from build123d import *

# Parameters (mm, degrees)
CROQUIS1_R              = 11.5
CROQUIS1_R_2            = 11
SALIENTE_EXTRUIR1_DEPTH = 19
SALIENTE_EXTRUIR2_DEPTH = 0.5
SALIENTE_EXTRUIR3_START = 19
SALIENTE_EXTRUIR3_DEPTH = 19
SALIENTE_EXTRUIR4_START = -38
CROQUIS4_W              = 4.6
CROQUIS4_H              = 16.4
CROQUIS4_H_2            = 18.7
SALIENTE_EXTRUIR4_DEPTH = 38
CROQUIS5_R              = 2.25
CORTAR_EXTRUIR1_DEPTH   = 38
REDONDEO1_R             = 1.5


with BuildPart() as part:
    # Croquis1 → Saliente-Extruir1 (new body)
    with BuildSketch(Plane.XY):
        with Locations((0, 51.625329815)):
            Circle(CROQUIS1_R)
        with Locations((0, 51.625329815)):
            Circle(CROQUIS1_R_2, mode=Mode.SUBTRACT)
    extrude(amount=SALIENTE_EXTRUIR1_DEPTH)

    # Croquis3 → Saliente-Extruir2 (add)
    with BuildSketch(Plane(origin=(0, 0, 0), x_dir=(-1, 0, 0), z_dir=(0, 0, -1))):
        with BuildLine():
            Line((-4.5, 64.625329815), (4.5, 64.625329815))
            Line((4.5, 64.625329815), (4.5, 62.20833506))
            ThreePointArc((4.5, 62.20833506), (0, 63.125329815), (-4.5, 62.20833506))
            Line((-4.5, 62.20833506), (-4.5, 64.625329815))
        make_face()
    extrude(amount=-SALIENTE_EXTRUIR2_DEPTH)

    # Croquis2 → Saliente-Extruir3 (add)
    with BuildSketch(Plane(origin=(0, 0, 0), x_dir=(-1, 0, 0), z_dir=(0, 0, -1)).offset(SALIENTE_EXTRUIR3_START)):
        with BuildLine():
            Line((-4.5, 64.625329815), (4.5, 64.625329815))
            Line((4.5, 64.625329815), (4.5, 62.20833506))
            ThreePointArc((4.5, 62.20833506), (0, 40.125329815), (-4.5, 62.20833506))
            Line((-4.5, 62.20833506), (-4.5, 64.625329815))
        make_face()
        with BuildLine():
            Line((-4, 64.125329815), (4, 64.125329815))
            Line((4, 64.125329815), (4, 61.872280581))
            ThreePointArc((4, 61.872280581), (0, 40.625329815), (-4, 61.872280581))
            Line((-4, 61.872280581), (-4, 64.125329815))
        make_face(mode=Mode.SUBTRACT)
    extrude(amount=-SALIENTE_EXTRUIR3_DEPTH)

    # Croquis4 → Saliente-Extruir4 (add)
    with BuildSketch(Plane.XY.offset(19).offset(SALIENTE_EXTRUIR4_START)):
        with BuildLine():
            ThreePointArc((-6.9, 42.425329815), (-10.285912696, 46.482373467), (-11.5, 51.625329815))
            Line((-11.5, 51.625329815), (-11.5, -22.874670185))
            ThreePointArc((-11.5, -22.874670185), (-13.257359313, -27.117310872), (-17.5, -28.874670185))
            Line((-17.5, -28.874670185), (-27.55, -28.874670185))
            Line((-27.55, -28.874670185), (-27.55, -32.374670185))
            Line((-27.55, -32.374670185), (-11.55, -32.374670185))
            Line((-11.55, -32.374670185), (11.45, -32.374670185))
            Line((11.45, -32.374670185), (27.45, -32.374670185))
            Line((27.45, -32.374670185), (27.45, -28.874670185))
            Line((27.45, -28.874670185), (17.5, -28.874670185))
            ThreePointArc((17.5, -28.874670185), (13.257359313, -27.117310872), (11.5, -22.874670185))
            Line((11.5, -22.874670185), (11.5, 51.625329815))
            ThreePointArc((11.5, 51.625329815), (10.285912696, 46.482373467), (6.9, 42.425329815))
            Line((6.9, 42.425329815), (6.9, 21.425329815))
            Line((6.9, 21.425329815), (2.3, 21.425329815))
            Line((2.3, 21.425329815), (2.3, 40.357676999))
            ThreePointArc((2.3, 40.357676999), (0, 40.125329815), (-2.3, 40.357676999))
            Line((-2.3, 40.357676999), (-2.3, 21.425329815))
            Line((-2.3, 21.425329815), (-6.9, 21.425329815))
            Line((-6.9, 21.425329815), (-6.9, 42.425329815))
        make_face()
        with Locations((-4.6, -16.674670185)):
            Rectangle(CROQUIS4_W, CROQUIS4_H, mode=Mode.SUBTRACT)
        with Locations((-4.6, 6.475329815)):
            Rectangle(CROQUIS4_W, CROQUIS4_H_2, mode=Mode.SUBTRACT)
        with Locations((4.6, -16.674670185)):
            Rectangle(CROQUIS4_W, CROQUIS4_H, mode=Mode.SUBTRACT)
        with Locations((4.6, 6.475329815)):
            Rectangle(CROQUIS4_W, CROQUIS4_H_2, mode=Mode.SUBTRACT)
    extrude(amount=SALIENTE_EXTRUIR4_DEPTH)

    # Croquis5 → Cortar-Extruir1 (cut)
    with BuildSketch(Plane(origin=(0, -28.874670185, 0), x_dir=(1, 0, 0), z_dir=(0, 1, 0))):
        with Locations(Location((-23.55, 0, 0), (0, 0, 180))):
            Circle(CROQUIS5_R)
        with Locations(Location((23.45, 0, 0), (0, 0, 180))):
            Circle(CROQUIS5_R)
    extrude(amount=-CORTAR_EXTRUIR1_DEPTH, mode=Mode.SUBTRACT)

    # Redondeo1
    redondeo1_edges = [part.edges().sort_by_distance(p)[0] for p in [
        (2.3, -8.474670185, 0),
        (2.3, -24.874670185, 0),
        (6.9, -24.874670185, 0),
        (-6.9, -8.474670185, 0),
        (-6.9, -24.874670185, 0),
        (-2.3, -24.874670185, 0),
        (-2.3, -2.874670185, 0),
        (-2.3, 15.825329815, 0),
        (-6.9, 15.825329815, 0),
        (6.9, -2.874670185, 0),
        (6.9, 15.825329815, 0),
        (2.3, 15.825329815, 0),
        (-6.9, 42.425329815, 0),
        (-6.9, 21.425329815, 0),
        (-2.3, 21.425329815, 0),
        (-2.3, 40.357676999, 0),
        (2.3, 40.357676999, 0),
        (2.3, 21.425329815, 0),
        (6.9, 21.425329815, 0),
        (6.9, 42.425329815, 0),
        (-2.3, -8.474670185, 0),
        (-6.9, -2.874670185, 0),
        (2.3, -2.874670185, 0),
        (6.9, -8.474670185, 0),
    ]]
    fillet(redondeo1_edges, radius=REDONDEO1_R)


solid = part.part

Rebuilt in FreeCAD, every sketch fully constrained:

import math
import FreeCAD as App
import Part
import Sketcher
from FreeCAD import Vector
Q = App.Units.Quantity


def edges_at(feature, points):
    """Names of the edges that pass closest to the given points."""
    edges = feature.Shape.Edges
    near = lambda p: min(range(len(edges)), key=lambda i: edges[i].distToShape(Part.Vertex(*p))[0])
    return sorted({f"Edge{near(p) + 1}" for p in points})

doc = App.newDocument("Part")
body = doc.addObject("PartDesign::Body", "Body")

# Sketch on XY plane
sketch1 = doc.addObject("Sketcher::SketchObject", "Sketch")
body.addObject(sketch1)
sketch1.AttachmentSupport = (doc.XY_Plane, [""])
sketch1.MapMode = "FlatFace"
sketch1.addGeometry(Part.Circle(Vector(0, 52, 0), Vector(0, 0, 1), 12), False)
sketch1.addGeometry(Part.Circle(Vector(0, 52, 0), Vector(0, 0, 1), 11), False)
sketch1.addConstraint(Sketcher.Constraint("Coincident", 1, 3, 0, 3))
sketch1.addConstraint(Sketcher.Constraint("PointOnObject", 0, 3, -2))
sketch1.addConstraint(Sketcher.Constraint("Diameter", 0, Q("23 mm")))
sketch1.addConstraint(Sketcher.Constraint("Diameter", 1, Q("22 mm")))
sketch1.addConstraint(Sketcher.Constraint("DistanceY", -1, 1, 0, 3, Q("51.62533 mm")))
pad1 = doc.addObject("PartDesign::Pad", "Pad")
body.addObject(pad1)
pad1.Profile = sketch1
pad1.Length = 19

# Sketch on XY plane
sketch2 = doc.addObject("Sketcher::SketchObject", "Sketch001")
body.addObject(sketch2)
sketch2.AttachmentSupport = (doc.XY_Plane, [""])
sketch2.MapMode = "FlatFace"
sketch2.addGeometry(Part.LineSegment(Vector(-4.5, 64.6, 0), Vector(4.5, 64.6, 0)), False)
sketch2.addGeometry(Part.LineSegment(Vector(4.5, 64.6, 0), Vector(4.5, 62.2, 0)), False)
sketch2.addGeometry(Part.ArcOfCircle(Part.Circle(Vector(0, 51.6, 0), Vector(0, 0, 1), 11.5), math.radians(67), math.radians(113)), False)
sketch2.addGeometry(Part.LineSegment(Vector(-4.5, 62.2, 0), Vector(-4.5, 64.6, 0)), False)
sketch2.addConstraint(Sketcher.Constraint("Coincident", 0, 2, 1, 1))
sketch2.addConstraint(Sketcher.Constraint("Coincident", 1, 2, 2, 1))
sketch2.addConstraint(Sketcher.Constraint("Coincident", 2, 2, 3, 1))
sketch2.addConstraint(Sketcher.Constraint("Coincident", 3, 2, 0, 1))
sketch2.addConstraint(Sketcher.Constraint("Horizontal", 0))
sketch2.addConstraint(Sketcher.Constraint("Vertical", 1))
sketch2.addConstraint(Sketcher.Constraint("Vertical", 3))
sketch2.addConstraint(Sketcher.Constraint("Symmetric", 1, 2, 2, 2, -2))
sketch2.addConstraint(Sketcher.Constraint("Radius", 2, Q("11.5 mm")))
sketch2.addConstraint(Sketcher.Constraint("DistanceX", 0, 1, 0, 2, Q("9 mm")))
sketch2.addConstraint(Sketcher.Constraint("DistanceY", 2, 3, 0, 2, Q("13 mm")))
sketch2.addConstraint(Sketcher.Constraint("DistanceY", -1, 1, 2, 3, Q("51.62533 mm")))
pad2 = doc.addObject("PartDesign::Pad", "Pad001")
body.addObject(pad2)
pad2.Profile = sketch2
pad2.Length = 0.5

# Sketch on XY plane
sketch3 = doc.addObject("Sketcher::SketchObject", "Sketch002")
body.addObject(sketch3)
sketch3.AttachmentSupport = (doc.XY_Plane, [""])
sketch3.MapMode = "FlatFace"
sketch3.AttachmentOffset = App.Placement(Vector(0, 0, -19), App.Rotation())
sketch3.addGeometry(Part.LineSegment(Vector(-4.5, 64.6, 0), Vector(4.5, 64.6, 0)), False)
sketch3.addGeometry(Part.LineSegment(Vector(4.5, 64.6, 0), Vector(4.5, 62.2, 0)), False)
sketch3.addGeometry(Part.ArcOfCircle(Part.Circle(Vector(0, 51.6, 0), Vector(0, 0, 1), 11.5), math.radians(113), math.radians(427)), False)
sketch3.addGeometry(Part.LineSegment(Vector(-4.5, 62.2, 0), Vector(-4.5, 64.6, 0)), False)
sketch3.addGeometry(Part.LineSegment(Vector(4, 64.1, 0), Vector(-4, 64.1, 0)), False)
sketch3.addGeometry(Part.LineSegment(Vector(-4, 64.1, 0), Vector(-4, 61.9, 0)), False)
sketch3.addGeometry(Part.ArcOfCircle(Part.Circle(Vector(0, 51.6, 0), Vector(0, 0, 1), 11), math.radians(111), math.radians(429)), False)
sketch3.addGeometry(Part.LineSegment(Vector(4, 61.9, 0), Vector(4, 64.1, 0)), False)
sketch3.addConstraint(Sketcher.Constraint("Coincident", 0, 2, 1, 1))
sketch3.addConstraint(Sketcher.Constraint("Coincident", 1, 2, 2, 2))
sketch3.addConstraint(Sketcher.Constraint("Coincident", 2, 1, 3, 1))
sketch3.addConstraint(Sketcher.Constraint("Coincident", 3, 2, 0, 1))
sketch3.addConstraint(Sketcher.Constraint("Coincident", 4, 2, 5, 1))
sketch3.addConstraint(Sketcher.Constraint("Coincident", 5, 2, 6, 1))
sketch3.addConstraint(Sketcher.Constraint("Coincident", 6, 2, 7, 1))
sketch3.addConstraint(Sketcher.Constraint("Coincident", 7, 2, 4, 1))
sketch3.addConstraint(Sketcher.Constraint("Horizontal", 0))
sketch3.addConstraint(Sketcher.Constraint("Vertical", 1))
sketch3.addConstraint(Sketcher.Constraint("Vertical", 3))
sketch3.addConstraint(Sketcher.Constraint("Horizontal", 4))
sketch3.addConstraint(Sketcher.Constraint("Vertical", 5))
sketch3.addConstraint(Sketcher.Constraint("Vertical", 7))
sketch3.addConstraint(Sketcher.Constraint("Coincident", 6, 3, 2, 3))
sketch3.addConstraint(Sketcher.Constraint("Symmetric", 1, 2, 2, 1, -2))
sketch3.addConstraint(Sketcher.Constraint("Horizontal", 5, 2, 6, 2))
sketch3.addConstraint(Sketcher.Constraint("Radius", 6, Q("11 mm")))
sketch3.addConstraint(Sketcher.Constraint("Radius", 2, Q("11.5 mm")))
sketch3.addConstraint(Sketcher.Constraint("DistanceX", 0, 1, 0, 2, Q("9 mm")))
sketch3.addConstraint(Sketcher.Constraint("DistanceX", 4, 2, 4, 1, Q("8 mm")))
sketch3.addConstraint(Sketcher.Constraint("DistanceY", 2, 3, 0, 2, Q("13 mm")))
sketch3.addConstraint(Sketcher.Constraint("DistanceY", 4, 2, 3, 2, Q("0.5 mm")))
sketch3.addConstraint(Sketcher.Constraint("DistanceY", -1, 1, 2, 3, Q("51.62533 mm")))
pad3 = doc.addObject("PartDesign::Pad", "Pad002")
body.addObject(pad3)
pad3.Profile = sketch3
pad3.Length = 19

# Sketch on XY plane
sketch4 = doc.addObject("Sketcher::SketchObject", "Sketch003")
body.addObject(sketch4)
sketch4.AttachmentSupport = (doc.XY_Plane, [""])
sketch4.MapMode = "FlatFace"
sketch4.AttachmentOffset = App.Placement(Vector(0, 0, -19), App.Rotation())
sketch4.addGeometry(Part.ArcOfCircle(Part.Circle(Vector(0, 51.6, 0), Vector(0, 0, 1), 11.5), math.radians(-180), math.radians(-127)), False)
sketch4.addGeometry(Part.LineSegment(Vector(-11.5, 51.6, 0), Vector(-11.5, -22.9, 0)), False)
sketch4.addGeometry(Part.ArcOfCircle(Part.Circle(Vector(-17.5, -22.9, 0), Vector(0, 0, 1), 6), math.radians(-90), math.radians(0)), False)
sketch4.addGeometry(Part.LineSegment(Vector(-17.5, -28.9, 0), Vector(-27.6, -28.9, 0)), False)
sketch4.addGeometry(Part.LineSegment(Vector(-27.6, -28.9, 0), Vector(-27.6, -32.4, 0)), False)
sketch4.addGeometry(Part.LineSegment(Vector(-27.6, -32.4, 0), Vector(27.4, -32.4, 0)), False)
sketch4.addGeometry(Part.LineSegment(Vector(27.4, -32.4, 0), Vector(27.4, -28.9, 0)), False)
sketch4.addGeometry(Part.LineSegment(Vector(27.4, -28.9, 0), Vector(17.5, -28.9, 0)), False)
sketch4.addGeometry(Part.ArcOfCircle(Part.Circle(Vector(17.5, -22.9, 0), Vector(0, 0, 1), 6), math.radians(180), math.radians(270)), False)
sketch4.addGeometry(Part.LineSegment(Vector(11.5, -22.9, 0), Vector(11.5, 51.6, 0)), False)
sketch4.addGeometry(Part.ArcOfCircle(Part.Circle(Vector(0, 51.6, 0), Vector(0, 0, 1), 11.5), math.radians(-53), math.radians(0)), False)
sketch4.addGeometry(Part.LineSegment(Vector(6.9, 42.4, 0), Vector(6.9, 21.4, 0)), False)
sketch4.addGeometry(Part.LineSegment(Vector(6.9, 21.4, 0), Vector(2.3, 21.4, 0)), False)
sketch4.addGeometry(Part.LineSegment(Vector(2.3, 21.4, 0), Vector(2.3, 40.4, 0)), False)
sketch4.addGeometry(Part.ArcOfCircle(Part.Circle(Vector(0, 51.6, 0), Vector(0, 0, 1), 11.5), math.radians(-102), math.radians(-78)), False)
sketch4.addGeometry(Part.LineSegment(Vector(-2.3, 40.4, 0), Vector(-2.3, 21.4, 0)), False)
sketch4.addGeometry(Part.LineSegment(Vector(-2.3, 21.4, 0), Vector(-6.9, 21.4, 0)), False)
sketch4.addGeometry(Part.LineSegment(Vector(-6.9, 21.4, 0), Vector(-6.9, 42.4, 0)), False)
sketch4.addGeometry(Part.LineSegment(Vector(-2.3, -24.9, 0), Vector(-6.9, -24.9, 0)), False)
sketch4.addGeometry(Part.LineSegment(Vector(-6.9, -24.9, 0), Vector(-6.9, -8.5, 0)), False)
sketch4.addGeometry(Part.LineSegment(Vector(-6.9, -8.5, 0), Vector(-2.3, -8.5, 0)), False)
sketch4.addGeometry(Part.LineSegment(Vector(-2.3, -8.5, 0), Vector(-2.3, -24.9, 0)), False)
sketch4.addGeometry(Part.LineSegment(Vector(6.9, -24.9, 0), Vector(2.3, -24.9, 0)), False)
sketch4.addGeometry(Part.LineSegment(Vector(2.3, -24.9, 0), Vector(2.3, -8.5, 0)), False)
sketch4.addGeometry(Part.LineSegment(Vector(2.3, -8.5, 0), Vector(6.9, -8.5, 0)), False)
sketch4.addGeometry(Part.LineSegment(Vector(6.9, -8.5, 0), Vector(6.9, -24.9, 0)), False)
sketch4.addGeometry(Part.LineSegment(Vector(-2.3, -2.9, 0), Vector(-6.9, -2.9, 0)), False)
sketch4.addGeometry(Part.LineSegment(Vector(-6.9, -2.9, 0), Vector(-6.9, 15.8, 0)), False)
sketch4.addGeometry(Part.LineSegment(Vector(-6.9, 15.8, 0), Vector(-2.3, 15.8, 0)), False)
sketch4.addGeometry(Part.LineSegment(Vector(-2.3, 15.8, 0), Vector(-2.3, -2.9, 0)), False)
sketch4.addGeometry(Part.LineSegment(Vector(6.9, -2.9, 0), Vector(2.3, -2.9, 0)), False)
sketch4.addGeometry(Part.LineSegment(Vector(2.3, -2.9, 0), Vector(2.3, 15.8, 0)), False)
sketch4.addGeometry(Part.LineSegment(Vector(2.3, 15.8, 0), Vector(6.9, 15.8, 0)), False)
sketch4.addGeometry(Part.LineSegment(Vector(6.9, 15.8, 0), Vector(6.9, -2.9, 0)), False)
sketch4.addConstraint(Sketcher.Constraint("Tangent", 0, 1, 1, 1))
sketch4.addConstraint(Sketcher.Constraint("Tangent", 1, 2, 2, 2))
sketch4.addConstraint(Sketcher.Constraint("Tangent", 2, 1, 3, 1))
sketch4.addConstraint(Sketcher.Constraint("Coincident", 3, 2, 4, 1))
sketch4.addConstraint(Sketcher.Constraint("Coincident", 4, 2, 5, 1))
sketch4.addConstraint(Sketcher.Constraint("Coincident", 5, 2, 6, 1))
sketch4.addConstraint(Sketcher.Constraint("Coincident", 6, 2, 7, 1))
sketch4.addConstraint(Sketcher.Constraint("Tangent", 7, 2, 8, 2))
sketch4.addConstraint(Sketcher.Constraint("Tangent", 8, 1, 9, 1))
sketch4.addConstraint(Sketcher.Constraint("Tangent", 9, 2, 10, 2))
sketch4.addConstraint(Sketcher.Constraint("Coincident", 10, 1, 11, 1))
sketch4.addConstraint(Sketcher.Constraint("Coincident", 11, 2, 12, 1))
sketch4.addConstraint(Sketcher.Constraint("Coincident", 12, 2, 13, 1))
sketch4.addConstraint(Sketcher.Constraint("Coincident", 13, 2, 14, 2))
sketch4.addConstraint(Sketcher.Constraint("Coincident", 14, 1, 15, 1))
sketch4.addConstraint(Sketcher.Constraint("Coincident", 15, 2, 16, 1))
sketch4.addConstraint(Sketcher.Constraint("Coincident", 16, 2, 17, 1))
sketch4.addConstraint(Sketcher.Constraint("Coincident", 17, 2, 0, 2))
sketch4.addConstraint(Sketcher.Constraint("Coincident", 18, 2, 19, 1))
sketch4.addConstraint(Sketcher.Constraint("Coincident", 19, 2, 20, 1))
sketch4.addConstraint(Sketcher.Constraint("Coincident", 20, 2, 21, 1))
sketch4.addConstraint(Sketcher.Constraint("Coincident", 21, 2, 18, 1))
sketch4.addConstraint(Sketcher.Constraint("Coincident", 22, 2, 23, 1))
sketch4.addConstraint(Sketcher.Constraint("Coincident", 23, 2, 24, 1))
sketch4.addConstraint(Sketcher.Constraint("Coincident", 24, 2, 25, 1))
sketch4.addConstraint(Sketcher.Constraint("Coincident", 25, 2, 22, 1))
sketch4.addConstraint(Sketcher.Constraint("Coincident", 26, 2, 27, 1))
sketch4.addConstraint(Sketcher.Constraint("Coincident", 27, 2, 28, 1))
sketch4.addConstraint(Sketcher.Constraint("Coincident", 28, 2, 29, 1))
sketch4.addConstraint(Sketcher.Constraint("Coincident", 29, 2, 26, 1))
sketch4.addConstraint(Sketcher.Constraint("Coincident", 30, 2, 31, 1))
sketch4.addConstraint(Sketcher.Constraint("Coincident", 31, 2, 32, 1))
sketch4.addConstraint(Sketcher.Constraint("Coincident", 32, 2, 33, 1))
sketch4.addConstraint(Sketcher.Constraint("Coincident", 33, 2, 30, 1))
sketch4.addConstraint(Sketcher.Constraint("Vertical", 1))
sketch4.addConstraint(Sketcher.Constraint("Horizontal", 3))
sketch4.addConstraint(Sketcher.Constraint("Vertical", 4))
sketch4.addConstraint(Sketcher.Constraint("Horizontal", 5))
sketch4.addConstraint(Sketcher.Constraint("Vertical", 6))
sketch4.addConstraint(Sketcher.Constraint("Horizontal", 7))
sketch4.addConstraint(Sketcher.Constraint("Vertical", 9))
sketch4.addConstraint(Sketcher.Constraint("Vertical", 11))
sketch4.addConstraint(Sketcher.Constraint("Horizontal", 12))
sketch4.addConstraint(Sketcher.Constraint("Vertical", 13))
sketch4.addConstraint(Sketcher.Constraint("Vertical", 15))
sketch4.addConstraint(Sketcher.Constraint("Horizontal", 16))
sketch4.addConstraint(Sketcher.Constraint("Vertical", 17))
sketch4.addConstraint(Sketcher.Constraint("Horizontal", 18))
sketch4.addConstraint(Sketcher.Constraint("Vertical", 19))
sketch4.addConstraint(Sketcher.Constraint("Horizontal", 20))
sketch4.addConstraint(Sketcher.Constraint("Vertical", 21))
sketch4.addConstraint(Sketcher.Constraint("Horizontal", 22))
sketch4.addConstraint(Sketcher.Constraint("Vertical", 23))
sketch4.addConstraint(Sketcher.Constraint("Horizontal", 24))
sketch4.addConstraint(Sketcher.Constraint("Vertical", 25))
sketch4.addConstraint(Sketcher.Constraint("Horizontal", 26))
sketch4.addConstraint(Sketcher.Constraint("Vertical", 27))
sketch4.addConstraint(Sketcher.Constraint("Horizontal", 28))
sketch4.addConstraint(Sketcher.Constraint("Vertical", 29))
sketch4.addConstraint(Sketcher.Constraint("Horizontal", 30))
sketch4.addConstraint(Sketcher.Constraint("Vertical", 31))
sketch4.addConstraint(Sketcher.Constraint("Horizontal", 32))
sketch4.addConstraint(Sketcher.Constraint("Vertical", 33))
sketch4.addConstraint(Sketcher.Constraint("Coincident", 10, 3, 0, 3))
sketch4.addConstraint(Sketcher.Constraint("Coincident", 14, 3, 0, 3))
sketch4.addConstraint(Sketcher.Constraint("Equal", 2, 8))
sketch4.addConstraint(Sketcher.Constraint("Equal", 0, 10))
sketch4.addConstraint(Sketcher.Constraint("Equal", 10, 14))
sketch4.addConstraint(Sketcher.Constraint("Symmetric", 2, 3, 8, 3, -2))
sketch4.addConstraint(Sketcher.Constraint("Symmetric", 12, 2, 15, 2, -2))
sketch4.addConstraint(Sketcher.Constraint("Symmetric", 21, 2, 22, 2, -2))
sketch4.addConstraint(Sketcher.Constraint("Symmetric", 19, 2, 24, 2, -2))
sketch4.addConstraint(Sketcher.Constraint("Symmetric", 29, 2, 30, 2, -2))
sketch4.addConstraint(Sketcher.Constraint("Symmetric", 27, 2, 32, 2, -2))
sketch4.addConstraint(Sketcher.Constraint("Horizontal", 10, 1, 17, 2))
sketch4.addConstraint(Sketcher.Constraint("Vertical", 17, 2, 18, 2))
sketch4.addConstraint(Sketcher.Constraint("Vertical", 15, 2, 20, 2))
sketch4.addConstraint(Sketcher.Constraint("Vertical", 19, 2, 26, 2))
sketch4.addConstraint(Sketcher.Constraint("Vertical", 21, 2, 28, 2))
sketch4.addConstraint(Sketcher.Constraint("Radius", 2, Q("6 mm")))
sketch4.addConstraint(Sketcher.Constraint("Radius", 0, Q("11.5 mm")))
sketch4.addConstraint(Sketcher.Constraint("DistanceX", 5, 1, 5, 2, Q("55 mm")))
sketch4.addConstraint(Sketcher.Constraint("DistanceY", 11, 2, 11, 1, Q("21 mm")))
sketch4.addConstraint(Sketcher.Constraint("DistanceX", 12, 2, 12, 1, Q("4.6 mm")))
sketch4.addConstraint(Sketcher.Constraint("DistanceY", 1, 2, 1, 1, Q("74.5 mm")))
sketch4.addConstraint(Sketcher.Constraint("DistanceY", 4, 2, 4, 1, Q("3.5 mm")))
sketch4.addConstraint(Sketcher.Constraint("DistanceY", 19, 1, 19, 2, Q("16.4 mm")))
sketch4.addConstraint(Sketcher.Constraint("DistanceY", 27, 1, 27, 2, Q("18.7 mm")))
sketch4.addConstraint(Sketcher.Constraint("DistanceY", 18, 2, 1, 2, Q("2 mm")))
sketch4.addConstraint(Sketcher.Constraint("DistanceY", 1, 2, 26, 2, Q("20 mm")))
sketch4.addConstraint(Sketcher.Constraint("DistanceX", 3, 2, 3, 1, Q("10.05 mm")))
sketch4.addConstraint(Sketcher.Constraint("DistanceX", -1, 1, 10, 1, Q("6.9 mm")))
sketch4.addConstraint(Sketcher.Constraint("DistanceY", -1, 1, 0, 3, Q("51.62533 mm")))
pad4 = doc.addObject("PartDesign::Pad", "Pad003")
body.addObject(pad4)
pad4.Profile = sketch4
pad4.Length = 38

# Sketch on XZ plane
sketch5 = doc.addObject("Sketcher::SketchObject", "Sketch004")
body.addObject(sketch5)
sketch5.AttachmentSupport = (doc.XZ_Plane, [""])
sketch5.MapMode = "FlatFace"
sketch5.AttachmentOffset = App.Placement(Vector(0, 0, 28.87467), App.Rotation())
sketch5.addGeometry(Part.Circle(Vector(-23.6, 0, 0), Vector(0, 0, 1), 2.2), False)
sketch5.addGeometry(Part.Circle(Vector(23.4, 0, 0), Vector(0, 0, 1), 2.2), False)
sketch5.addConstraint(Sketcher.Constraint("Equal", 0, 1))
sketch5.addConstraint(Sketcher.Constraint("PointOnObject", 0, 3, -1))
sketch5.addConstraint(Sketcher.Constraint("PointOnObject", 1, 3, -1))
sketch5.addConstraint(Sketcher.Constraint("Diameter", 0, Q("4.5 mm")))
sketch5.addConstraint(Sketcher.Constraint("DistanceX", 0, 3, 1, 3, Q("47 mm")))
sketch5.addConstraint(Sketcher.Constraint("DistanceX", 0, 3, -1, 1, Q("23.55 mm")))
pocket1 = doc.addObject("PartDesign::Pocket", "Pocket")
body.addObject(pocket1)
pocket1.Profile = sketch5
pocket1.Length = 38
pocket1.Reversed = True
doc.recompute()

fillet = doc.addObject("PartDesign::Fillet", "Fillet")
body.addObject(fillet)
fillet.Base = (pocket1, edges_at(pocket1, [
    (2.3, -8.475, 0),
    (2.3, -24.875, 0),
    (6.9, -24.875, 0),
    (-6.9, -8.475, 0),
    (-6.9, -24.875, 0),
    (-2.3, -24.875, 0),
    (-2.3, -2.875, 0),
    (-2.3, 15.825, 0),
    (-6.9, 15.825, 0),
    (6.9, -2.875, 0),
    (6.9, 15.825, 0),
    (2.3, 15.825, 0),
    (-6.9, 42.425, -9.5),
    (-6.9, 21.425, 0),
    (-2.3, 21.425, 0),
    (-2.3, 40.358, -9.5),
    (2.3, 40.358, -9.5),
    (2.3, 21.425, 0),
    (6.9, 21.425, 0),
    (6.9, 42.425, -9.5),
    (-2.3, -8.475, 0),
    (-6.9, -2.875, 0),
    (2.3, -2.875, 0),
    (6.9, -8.475, 0),
]))
fillet.Radius = 1.5

doc.recompute()
